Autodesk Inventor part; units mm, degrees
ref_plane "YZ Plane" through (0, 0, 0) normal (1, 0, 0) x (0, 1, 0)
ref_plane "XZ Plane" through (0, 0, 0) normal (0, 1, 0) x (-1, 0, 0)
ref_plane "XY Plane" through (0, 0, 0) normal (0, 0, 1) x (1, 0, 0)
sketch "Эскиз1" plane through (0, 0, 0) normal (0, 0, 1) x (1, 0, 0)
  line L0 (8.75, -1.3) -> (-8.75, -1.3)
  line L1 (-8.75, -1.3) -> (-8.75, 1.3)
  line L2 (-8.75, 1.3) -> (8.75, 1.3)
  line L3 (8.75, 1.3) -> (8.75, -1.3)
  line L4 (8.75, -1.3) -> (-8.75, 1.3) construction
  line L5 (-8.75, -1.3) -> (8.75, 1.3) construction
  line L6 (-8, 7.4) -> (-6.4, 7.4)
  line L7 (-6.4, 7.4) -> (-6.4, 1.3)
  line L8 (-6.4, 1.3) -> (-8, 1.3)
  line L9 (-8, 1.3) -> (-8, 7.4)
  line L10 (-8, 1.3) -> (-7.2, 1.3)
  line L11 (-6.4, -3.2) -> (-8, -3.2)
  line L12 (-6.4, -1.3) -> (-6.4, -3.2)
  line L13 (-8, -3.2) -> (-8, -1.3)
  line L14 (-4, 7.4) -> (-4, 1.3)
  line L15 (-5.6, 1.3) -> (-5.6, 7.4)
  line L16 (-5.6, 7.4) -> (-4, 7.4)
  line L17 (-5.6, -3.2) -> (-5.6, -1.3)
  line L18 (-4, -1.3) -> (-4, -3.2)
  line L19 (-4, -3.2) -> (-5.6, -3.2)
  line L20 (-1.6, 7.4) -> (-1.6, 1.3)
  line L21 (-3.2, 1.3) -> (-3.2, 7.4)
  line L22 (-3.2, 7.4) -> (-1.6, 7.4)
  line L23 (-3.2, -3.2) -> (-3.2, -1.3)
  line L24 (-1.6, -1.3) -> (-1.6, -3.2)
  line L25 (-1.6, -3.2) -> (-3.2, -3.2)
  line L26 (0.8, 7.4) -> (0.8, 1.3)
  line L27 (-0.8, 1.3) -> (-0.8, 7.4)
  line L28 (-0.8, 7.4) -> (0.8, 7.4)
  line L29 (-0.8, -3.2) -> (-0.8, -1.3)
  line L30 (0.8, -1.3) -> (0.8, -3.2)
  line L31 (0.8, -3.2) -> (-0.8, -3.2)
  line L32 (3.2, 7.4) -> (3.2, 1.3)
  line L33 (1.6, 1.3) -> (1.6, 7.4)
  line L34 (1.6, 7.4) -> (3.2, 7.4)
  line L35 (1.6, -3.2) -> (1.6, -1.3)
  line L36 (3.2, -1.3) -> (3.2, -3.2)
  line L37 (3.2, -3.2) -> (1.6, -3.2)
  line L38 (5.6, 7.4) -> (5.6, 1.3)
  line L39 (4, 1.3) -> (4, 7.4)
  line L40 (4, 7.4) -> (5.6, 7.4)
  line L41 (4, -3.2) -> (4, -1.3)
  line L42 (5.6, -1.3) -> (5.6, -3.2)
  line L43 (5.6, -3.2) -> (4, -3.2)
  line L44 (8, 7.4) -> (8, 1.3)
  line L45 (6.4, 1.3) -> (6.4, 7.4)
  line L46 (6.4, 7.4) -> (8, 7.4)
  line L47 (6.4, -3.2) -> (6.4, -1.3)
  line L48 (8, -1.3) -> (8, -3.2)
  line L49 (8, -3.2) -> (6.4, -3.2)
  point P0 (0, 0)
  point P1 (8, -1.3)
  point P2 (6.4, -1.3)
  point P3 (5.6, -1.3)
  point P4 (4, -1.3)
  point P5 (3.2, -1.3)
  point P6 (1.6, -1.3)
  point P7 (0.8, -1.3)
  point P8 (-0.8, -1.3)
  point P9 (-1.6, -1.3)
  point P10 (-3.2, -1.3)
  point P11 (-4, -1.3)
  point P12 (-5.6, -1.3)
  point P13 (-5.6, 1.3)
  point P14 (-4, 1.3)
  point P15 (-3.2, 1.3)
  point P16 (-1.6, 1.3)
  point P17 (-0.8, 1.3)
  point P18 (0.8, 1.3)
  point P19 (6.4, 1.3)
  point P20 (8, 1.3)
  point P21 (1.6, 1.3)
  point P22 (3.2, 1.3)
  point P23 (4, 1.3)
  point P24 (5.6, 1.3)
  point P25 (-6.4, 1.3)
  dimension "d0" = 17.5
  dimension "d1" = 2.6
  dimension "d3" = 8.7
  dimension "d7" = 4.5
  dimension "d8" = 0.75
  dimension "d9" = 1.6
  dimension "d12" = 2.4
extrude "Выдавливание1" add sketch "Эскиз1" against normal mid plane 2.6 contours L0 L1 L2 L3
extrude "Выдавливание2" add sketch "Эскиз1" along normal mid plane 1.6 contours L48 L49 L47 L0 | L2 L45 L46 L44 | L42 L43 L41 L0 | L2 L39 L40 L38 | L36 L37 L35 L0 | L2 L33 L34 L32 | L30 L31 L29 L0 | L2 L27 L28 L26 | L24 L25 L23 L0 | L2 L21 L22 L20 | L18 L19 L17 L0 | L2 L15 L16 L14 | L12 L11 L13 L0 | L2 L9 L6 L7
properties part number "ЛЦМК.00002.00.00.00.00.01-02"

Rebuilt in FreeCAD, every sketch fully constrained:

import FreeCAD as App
import Part
import Sketcher
from FreeCAD import Vector
Q = App.Units.Quantity

doc = App.newDocument("Part")
params = doc.addObject("Spreadsheet::Sheet", "Params")
for row, (alias, value) in enumerate([
    ("sketch1_width", "17.5 mm"),
    ("sketch1_height", "2.6 mm"),
    ("pad1_length", "2.6 mm"),
    ("sketch2_width", "1.6 mm"),
    ("pad2_length", "1.6 mm"),
], start=1):
    params.set(f"A{row}", alias)
    params.set(f"B{row}", "=" + value)
    params.setAlias(f"B{row}", alias)

body = doc.addObject("PartDesign::Body", "Body")

# Sketch on XY plane
sketch1 = body.newObject("Sketcher::SketchObject", "Sketch")
sketch1.AttachmentSupport = (doc.getObject("XY_Plane"), [""])
sketch1.MapMode = "FlatFace"
sketch1.addGeometry([
    Part.LineSegment(Vector(-8.8, -1.3, 0), Vector(8.8, -1.3, 0)),
    Part.LineSegment(Vector(8.8, -1.3, 0), Vector(8.8, 1.3, 0)),
    Part.LineSegment(Vector(8.8, 1.3, 0), Vector(-8.8, 1.3, 0)),
    Part.LineSegment(Vector(-8.8, 1.3, 0), Vector(-8.8, -1.3, 0)),
], False)
sketch1.addConstraint([
    Sketcher.Constraint("Coincident", 0, 2, 1, 1),
    Sketcher.Constraint("Coincident", 1, 2, 2, 1),
    Sketcher.Constraint("Coincident", 2, 2, 3, 1),
    Sketcher.Constraint("Coincident", 3, 2, 0, 1),
    Sketcher.Constraint("Horizontal", 0),
    Sketcher.Constraint("Vertical", 1),
    Sketcher.Constraint("Horizontal", 2),
    Sketcher.Constraint("Vertical", 3),
    Sketcher.Constraint("Symmetric", 0, 2, 2, 2, -1, 1),
    Sketcher.Constraint("DistanceX", 0, 1, 0, 2, Q("17.5 mm")),
    Sketcher.Constraint("DistanceY", 1, 1, 1, 2, Q("2.6 mm")),
])
sketch1.setExpression("Constraints[9]", "Params.sketch1_width")
sketch1.setExpression("Constraints[10]", "Params.sketch1_height")
pad1 = body.newObject("PartDesign::Pad", "Pad")
pad1.Profile = sketch1
pad1.setExpression("Length", "Params.pad1_length")
pad1.Midplane = True

# Sketch on XY plane
sketch2 = body.newObject("Sketcher::SketchObject", "Sketch001")
sketch2.AttachmentSupport = (doc.getObject("XY_Plane"), [""])
sketch2.MapMode = "FlatFace"
sketch2.addGeometry([
    Part.LineSegment(Vector(8, -3.2, 0), Vector(8, -1.3, 0)),  # 0
    Part.LineSegment(Vector(8, -1.3, 0), Vector(6.4, -1.3, 0)),  # 1
    Part.LineSegment(Vector(6.4, -1.3, 0), Vector(6.4, -3.2, 0)),  # 2
    Part.LineSegment(Vector(6.4, -3.2, 0), Vector(8, -3.2, 0)),  # 3
    Part.LineSegment(Vector(6.4, 1.3, 0), Vector(8, 1.3, 0)),  # 4
    Part.LineSegment(Vector(8, 1.3, 0), Vector(8, 7.4, 0)),  # 5
    Part.LineSegment(Vector(8, 7.4, 0), Vector(6.4, 7.4, 0)),  # 6
    Part.LineSegment(Vector(6.4, 7.4, 0), Vector(6.4, 1.3, 0)),  # 7
    Part.LineSegment(Vector(5.6, -3.2, 0), Vector(5.6, -1.3, 0)),  # 8
    Part.LineSegment(Vector(5.6, -1.3, 0), Vector(4, -1.3, 0)),  # 9
    Part.LineSegment(Vector(4, -1.3, 0), Vector(4, -3.2, 0)),  # 10
    Part.LineSegment(Vector(4, -3.2, 0), Vector(5.6, -3.2, 0)),  # 11
    Part.LineSegment(Vector(4, 1.3, 0), Vector(5.6, 1.3, 0)),  # 12
    Part.LineSegment(Vector(5.6, 1.3, 0), Vector(5.6, 7.4, 0)),  # 13
    Part.LineSegment(Vector(5.6, 7.4, 0), Vector(4, 7.4, 0)),  # 14
    Part.LineSegment(Vector(4, 7.4, 0), Vector(4, 1.3, 0)),  # 15
    Part.LineSegment(Vector(3.2, -3.2, 0), Vector(3.2, -1.3, 0)),  # 16
    Part.LineSegment(Vector(3.2, -1.3, 0), Vector(1.6, -1.3, 0)),  # 17
    Part.LineSegment(Vector(1.6, -1.3, 0), Vector(1.6, -3.2, 0)),  # 18
    Part.LineSegment(Vector(1.6, -3.2, 0), Vector(3.2, -3.2, 0)),  # 19
    Part.LineSegment(Vector(1.6, 1.3, 0), Vector(3.2, 1.3, 0)),  # 20
    Part.LineSegment(Vector(3.2, 1.3, 0), Vector(3.2, 7.4, 0)),  # 21
    Part.LineSegment(Vector(3.2, 7.4, 0), Vector(1.6, 7.4, 0)),  # 22
    Part.LineSegment(Vector(1.6, 7.4, 0), Vector(1.6, 1.3, 0)),  # 23
    Part.LineSegment(Vector(0.8, -3.2, 0), Vector(0.8, -1.3, 0)),  # 24
    Part.LineSegment(Vector(0.8, -1.3, 0), Vector(-0.8, -1.3, 0)),  # 25
    Part.LineSegment(Vector(-0.8, -1.3, 0), Vector(-0.8, -3.2, 0)),  # 26
    Part.LineSegment(Vector(-0.8, -3.2, 0), Vector(0.8, -3.2, 0)),  # 27
    Part.LineSegment(Vector(-0.8, 1.3, 0), Vector(0.8, 1.3, 0)),  # 28
    Part.LineSegment(Vector(0.8, 1.3, 0), Vector(0.8, 7.4, 0)),  # 29
    Part.LineSegment(Vector(0.8, 7.4, 0), Vector(-0.8, 7.4, 0)),  # 30
    Part.LineSegment(Vector(-0.8, 7.4, 0), Vector(-0.8, 1.3, 0)),  # 31
    Part.LineSegment(Vector(-1.6, -3.2, 0), Vector(-1.6, -1.3, 0)),  # 32
    Part.LineSegment(Vector(-1.6, -1.3, 0), Vector(-3.2, -1.3, 0)),  # 33
    Part.LineSegment(Vector(-3.2, -1.3, 0), Vector(-3.2, -3.2, 0)),  # 34
    Part.LineSegment(Vector(-3.2, -3.2, 0), Vector(-1.6, -3.2, 0)),  # 35
    Part.LineSegment(Vector(-3.2, 1.3, 0), Vector(-1.6, 1.3, 0)),  # 36
    Part.LineSegment(Vector(-1.6, 1.3, 0), Vector(-1.6, 7.4, 0)),  # 37
    Part.LineSegment(Vector(-1.6, 7.4, 0), Vector(-3.2, 7.4, 0)),  # 38
    Part.LineSegment(Vector(-3.2, 7.4, 0), Vector(-3.2, 1.3, 0)),  # 39
    Part.LineSegment(Vector(-4, -3.2, 0), Vector(-4, -1.3, 0)),  # 40
    Part.LineSegment(Vector(-4, -1.3, 0), Vector(-5.6, -1.3, 0)),  # 41
    Part.LineSegment(Vector(-5.6, -1.3, 0), Vector(-5.6, -3.2, 0)),  # 42
    Part.LineSegment(Vector(-5.6, -3.2, 0), Vector(-4, -3.2, 0)),  # 43
    Part.LineSegment(Vector(-5.6, 1.3, 0), Vector(-4, 1.3, 0)),  # 44
    Part.LineSegment(Vector(-4, 1.3, 0), Vector(-4, 7.4, 0)),  # 45
    Part.LineSegment(Vector(-4, 7.4, 0), Vector(-5.6, 7.4, 0)),  # 46
    Part.LineSegment(Vector(-5.6, 7.4, 0), Vector(-5.6, 1.3, 0)),  # 47
    Part.LineSegment(Vector(-6.4, -3.2, 0), Vector(-6.4, -1.3, 0)),  # 48
    Part.LineSegment(Vector(-6.4, -1.3, 0), Vector(-8, -1.3, 0)),  # 49
    Part.LineSegment(Vector(-8, -1.3, 0), Vector(-8, -3.2, 0)),  # 50
    Part.LineSegment(Vector(-8, -3.2, 0), Vector(-6.4, -3.2, 0)),  # 51
    Part.LineSegment(Vector(-8, 1.3, 0), Vector(-6.4, 1.3, 0)),  # 52
    Part.LineSegment(Vector(-6.4, 1.3, 0), Vector(-6.4, 7.4, 0)),  # 53
    Part.LineSegment(Vector(-6.4, 7.4, 0), Vector(-8, 7.4, 0)),  # 54
    Part.LineSegment(Vector(-8, 7.4, 0), Vector(-8, 1.3, 0)),  # 55
], False)
sketch2.addConstraint([
    Sketcher.Constraint("Coincident", 0, 2, 1, 1),
    Sketcher.Constraint("Coincident", 1, 2, 2, 1),
    Sketcher.Constraint("Coincident", 2, 2, 3, 1),
    Sketcher.Constraint("Coincident", 3, 2, 0, 1),
    Sketcher.Constraint("Coincident", 4, 2, 5, 1),
    Sketcher.Constraint("Coincident", 5, 2, 6, 1),
    Sketcher.Constraint("Coincident", 6, 2, 7, 1),
    Sketcher.Constraint("Coincident", 7, 2, 4, 1),
    Sketcher.Constraint("Coincident", 8, 2, 9, 1),
    Sketcher.Constraint("Coincident", 9, 2, 10, 1),
    Sketcher.Constraint("Coincident", 10, 2, 11, 1),
    Sketcher.Constraint("Coincident", 11, 2, 8, 1),
    Sketcher.Constraint("Coincident", 12, 2, 13, 1),
    Sketcher.Constraint("Coincident", 13, 2, 14, 1),
    Sketcher.Constraint("Coincident", 14, 2, 15, 1),
    Sketcher.Constraint("Coincident", 15, 2, 12, 1),
    Sketcher.Constraint("Coincident", 16, 2, 17, 1),
    Sketcher.Constraint("Coincident", 17, 2, 18, 1),
    Sketcher.Constraint("Coincident", 18, 2, 19, 1),
    Sketcher.Constraint("Coincident", 19, 2, 16, 1),
    Sketcher.Constraint("Coincident", 20, 2, 21, 1),
    Sketcher.Constraint("Coincident", 21, 2, 22, 1),
    Sketcher.Constraint("Coincident", 22, 2, 23, 1),
    Sketcher.Constraint("Coincident", 23, 2, 20, 1),
    Sketcher.Constraint("Coincident", 24, 2, 25, 1),
    Sketcher.Constraint("Coincident", 25, 2, 26, 1),
    Sketcher.Constraint("Coincident", 26, 2, 27, 1),
    Sketcher.Constraint("Coincident", 27, 2, 24, 1),
    Sketcher.Constraint("Coincident", 28, 2, 29, 1),
    Sketcher.Constraint("Coincident", 29, 2, 30, 1),
    Sketcher.Constraint("Coincident", 30, 2, 31, 1),
    Sketcher.Constraint("Coincident", 31, 2, 28, 1),
    Sketcher.Constraint("Coincident", 32, 2, 33, 1),
    Sketcher.Constraint("Coincident", 33, 2, 34, 1),
    Sketcher.Constraint("Coincident", 34, 2, 35, 1),
    Sketcher.Constraint("Coincident", 35, 2, 32, 1),
    Sketcher.Constraint("Coincident", 36, 2, 37, 1),
    Sketcher.Constraint("Coincident", 37, 2, 38, 1),
    Sketcher.Constraint("Coincident", 38, 2, 39, 1),
    Sketcher.Constraint("Coincident", 39, 2, 36, 1),
    Sketcher.Constraint("Coincident", 40, 2, 41, 1),
    Sketcher.Constraint("Coincident", 41, 2, 42, 1),
    Sketcher.Constraint("Coincident", 42, 2, 43, 1),
    Sketcher.Constraint("Coincident", 43, 2, 40, 1),
    Sketcher.Constraint("Coincident", 44, 2, 45, 1),
    Sketcher.Constraint("Coincident", 45, 2, 46, 1),
    Sketcher.Constraint("Coincident", 46, 2, 47, 1),
    Sketcher.Constraint("Coincident", 47, 2, 44, 1),
    Sketcher.Constraint("Coincident", 48, 2, 49, 1),
    Sketcher.Constraint("Coincident", 49, 2, 50, 1),
    Sketcher.Constraint("Coincident", 50, 2, 51, 1),
    Sketcher.Constraint("Coincident", 51, 2, 48, 1),
    Sketcher.Constraint("Coincident", 52, 2, 53, 1),
    Sketcher.Constraint("Coincident", 53, 2, 54, 1),
    Sketcher.Constraint("Coincident", 54, 2, 55, 1),
    Sketcher.Constraint("Coincident", 55, 2, 52, 1),
    Sketcher.Constraint("Vertical", 0),
    Sketcher.Constraint("Horizontal", 1),
    Sketcher.Constraint("Vertical", 2),
    Sketcher.Constraint("Horizontal", 3),
    Sketcher.Constraint("Horizontal", 4),
    Sketcher.Constraint("Vertical", 5),
    Sketcher.Constraint("Horizontal", 6),
    Sketcher.Constraint("Vertical", 7),
    Sketcher.Constraint("Vertical", 8),
    Sketcher.Constraint("Horizontal", 9),
    Sketcher.Constraint("Vertical", 10),
    Sketcher.Constraint("Horizontal", 11),
    Sketcher.Constraint("Horizontal", 12),
    Sketcher.Constraint("Vertical", 13),
    Sketcher.Constraint("Horizontal", 14),
    Sketcher.Constraint("Vertical", 15),
    Sketcher.Constraint("Vertical", 16),
    Sketcher.Constraint("Horizontal", 17),
    Sketcher.Constraint("Vertical", 18),
    Sketcher.Constraint("Horizontal", 19),
    Sketcher.Constraint("Horizontal", 20),
    Sketcher.Constraint("Vertical", 21),
    Sketcher.Constraint("Horizontal", 22),
    Sketcher.Constraint("Vertical", 23),
    Sketcher.Constraint("Vertical", 24),
    Sketcher.Constraint("Horizontal", 25),
    Sketcher.Constraint("Vertical", 26),
    Sketcher.Constraint("Horizontal", 27),
    Sketcher.Constraint("Horizontal", 28),
    Sketcher.Constraint("Vertical", 29),
    Sketcher.Constraint("Horizontal", 30),
    Sketcher.Constraint("Vertical", 31),
    Sketcher.Constraint("Vertical", 32),
    Sketcher.Constraint("Horizontal", 33),
    Sketcher.Constraint("Vertical", 34),
    Sketcher.Constraint("Horizontal", 35),
    Sketcher.Constraint("Horizontal", 36),
    Sketcher.Constraint("Vertical", 37),
    Sketcher.Constraint("Horizontal", 38),
    Sketcher.Constraint("Vertical", 39),
    Sketcher.Constraint("Vertical", 40),
    Sketcher.Constraint("Horizontal", 41),
    Sketcher.Constraint("Vertical", 42),
    Sketcher.Constraint("Horizontal", 43),
    Sketcher.Constraint("Horizontal", 44),
    Sketcher.Constraint("Vertical", 45),
    Sketcher.Constraint("Horizontal", 46),
    Sketcher.Constraint("Vertical", 47),
    Sketcher.Constraint("Vertical", 48),
    Sketcher.Constraint("Horizontal", 49),
    Sketcher.Constraint("Vertical", 50),
    Sketcher.Constraint("Horizontal", 51),
    Sketcher.Constraint("Horizontal", 52),
    Sketcher.Constraint("Vertical", 53),
    Sketcher.Constraint("Horizontal", 54),
    Sketcher.Constraint("Vertical", 55),
    Sketcher.Constraint("Symmetric", 25, 2, 28, 2, -1, 1),
    Sketcher.Constraint("Symmetric", 23, 2, 32, 2, -1, 1),
    Sketcher.Constraint("Symmetric", 17, 2, 36, 2, -1, 1),
    Sketcher.Constraint("Symmetric", 15, 2, 40, 2, -1, 1),
    Sketcher.Constraint("Symmetric", 9, 2, 44, 2, -1, 1),
    Sketcher.Constraint("Symmetric", 7, 2, 48, 2, -1, 1),
    Sketcher.Constraint("Symmetric", 1, 2, 52, 2, -1, 1),
    Sketcher.Constraint("Symmetric", 17, 2, 32, 2, -2),
    Sketcher.Constraint("Symmetric", 19, 2, 34, 2, -2),
    Sketcher.Constraint("Symmetric", 21, 2, 38, 2, -2),
    Sketcher.Constraint("Symmetric", 9, 2, 40, 2, -2),
    Sketcher.Constraint("Symmetric", 11, 2, 42, 2, -2),
    Sketcher.Constraint("Symmetric", 13, 2, 46, 2, -2),
    Sketcher.Constraint("Symmetric", 1, 2, 48, 2, -2),
    Sketcher.Constraint("Symmetric", 3, 2, 50, 2, -2),
    Sketcher.Constraint("Symmetric", 5, 2, 54, 2, -2),
    Sketcher.Constraint("Horizontal", 1, 2, 8, 2),
    Sketcher.Constraint("Horizontal", 3, 2, 10, 2),
    Sketcher.Constraint("Horizontal", 6, 2, 13, 2),
    Sketcher.Constraint("Horizontal", 9, 2, 16, 2),
    Sketcher.Constraint("Horizontal", 11, 2, 18, 2),
    Sketcher.Constraint("Horizontal", 14, 2, 21, 2),
    Sketcher.Constraint("Horizontal", 17, 2, 24, 2),
    Sketcher.Constraint("Horizontal", 19, 2, 26, 2),
    Sketcher.Constraint("Horizontal", 22, 2, 29, 2),
    Sketcher.Constraint("Vertical", 3, 2, 4, 2),
    Sketcher.Constraint("Vertical", 11, 2, 12, 2),
    Sketcher.Constraint("Vertical", 19, 2, 20, 2),
    Sketcher.Constraint("Vertical", 27, 2, 28, 2),
    Sketcher.Constraint("Vertical", 26, 2, 30, 2),
    Sketcher.Constraint("Equal", 6, 9),
    Sketcher.Constraint("Equal", 14, 17),
    Sketcher.Constraint("Equal", 22, 25),
    Sketcher.Constraint("DistanceX", 1, 2, 1, 1, Q("1.6 mm")),
    Sketcher.Constraint("DistanceX", -1, 1, 17, 2, Q("1.6 mm")),
    Sketcher.Constraint("DistanceY", 0, 2, 4, 2, Q("2.6 mm")),
    Sketcher.Constraint("DistanceY", 3, 2, 4, 2, Q("4.5 mm")),
    Sketcher.Constraint("DistanceY", 0, 2, 5, 2, Q("8.7 mm")),
    Sketcher.Constraint("DistanceX", 8, 2, 0, 2, Q("2.4 mm")),
    Sketcher.Constraint("DistanceX", 16, 2, 8, 2, Q("2.4 mm")),
])
sketch2.setExpression("Constraints[145]", "Params.sketch2_width")
pad2 = body.newObject("PartDesign::Pad", "Pad001")
pad2.Profile = sketch2
pad2.setExpression("Length", "Params.pad2_length")
pad2.Midplane = True

doc.recompute()
